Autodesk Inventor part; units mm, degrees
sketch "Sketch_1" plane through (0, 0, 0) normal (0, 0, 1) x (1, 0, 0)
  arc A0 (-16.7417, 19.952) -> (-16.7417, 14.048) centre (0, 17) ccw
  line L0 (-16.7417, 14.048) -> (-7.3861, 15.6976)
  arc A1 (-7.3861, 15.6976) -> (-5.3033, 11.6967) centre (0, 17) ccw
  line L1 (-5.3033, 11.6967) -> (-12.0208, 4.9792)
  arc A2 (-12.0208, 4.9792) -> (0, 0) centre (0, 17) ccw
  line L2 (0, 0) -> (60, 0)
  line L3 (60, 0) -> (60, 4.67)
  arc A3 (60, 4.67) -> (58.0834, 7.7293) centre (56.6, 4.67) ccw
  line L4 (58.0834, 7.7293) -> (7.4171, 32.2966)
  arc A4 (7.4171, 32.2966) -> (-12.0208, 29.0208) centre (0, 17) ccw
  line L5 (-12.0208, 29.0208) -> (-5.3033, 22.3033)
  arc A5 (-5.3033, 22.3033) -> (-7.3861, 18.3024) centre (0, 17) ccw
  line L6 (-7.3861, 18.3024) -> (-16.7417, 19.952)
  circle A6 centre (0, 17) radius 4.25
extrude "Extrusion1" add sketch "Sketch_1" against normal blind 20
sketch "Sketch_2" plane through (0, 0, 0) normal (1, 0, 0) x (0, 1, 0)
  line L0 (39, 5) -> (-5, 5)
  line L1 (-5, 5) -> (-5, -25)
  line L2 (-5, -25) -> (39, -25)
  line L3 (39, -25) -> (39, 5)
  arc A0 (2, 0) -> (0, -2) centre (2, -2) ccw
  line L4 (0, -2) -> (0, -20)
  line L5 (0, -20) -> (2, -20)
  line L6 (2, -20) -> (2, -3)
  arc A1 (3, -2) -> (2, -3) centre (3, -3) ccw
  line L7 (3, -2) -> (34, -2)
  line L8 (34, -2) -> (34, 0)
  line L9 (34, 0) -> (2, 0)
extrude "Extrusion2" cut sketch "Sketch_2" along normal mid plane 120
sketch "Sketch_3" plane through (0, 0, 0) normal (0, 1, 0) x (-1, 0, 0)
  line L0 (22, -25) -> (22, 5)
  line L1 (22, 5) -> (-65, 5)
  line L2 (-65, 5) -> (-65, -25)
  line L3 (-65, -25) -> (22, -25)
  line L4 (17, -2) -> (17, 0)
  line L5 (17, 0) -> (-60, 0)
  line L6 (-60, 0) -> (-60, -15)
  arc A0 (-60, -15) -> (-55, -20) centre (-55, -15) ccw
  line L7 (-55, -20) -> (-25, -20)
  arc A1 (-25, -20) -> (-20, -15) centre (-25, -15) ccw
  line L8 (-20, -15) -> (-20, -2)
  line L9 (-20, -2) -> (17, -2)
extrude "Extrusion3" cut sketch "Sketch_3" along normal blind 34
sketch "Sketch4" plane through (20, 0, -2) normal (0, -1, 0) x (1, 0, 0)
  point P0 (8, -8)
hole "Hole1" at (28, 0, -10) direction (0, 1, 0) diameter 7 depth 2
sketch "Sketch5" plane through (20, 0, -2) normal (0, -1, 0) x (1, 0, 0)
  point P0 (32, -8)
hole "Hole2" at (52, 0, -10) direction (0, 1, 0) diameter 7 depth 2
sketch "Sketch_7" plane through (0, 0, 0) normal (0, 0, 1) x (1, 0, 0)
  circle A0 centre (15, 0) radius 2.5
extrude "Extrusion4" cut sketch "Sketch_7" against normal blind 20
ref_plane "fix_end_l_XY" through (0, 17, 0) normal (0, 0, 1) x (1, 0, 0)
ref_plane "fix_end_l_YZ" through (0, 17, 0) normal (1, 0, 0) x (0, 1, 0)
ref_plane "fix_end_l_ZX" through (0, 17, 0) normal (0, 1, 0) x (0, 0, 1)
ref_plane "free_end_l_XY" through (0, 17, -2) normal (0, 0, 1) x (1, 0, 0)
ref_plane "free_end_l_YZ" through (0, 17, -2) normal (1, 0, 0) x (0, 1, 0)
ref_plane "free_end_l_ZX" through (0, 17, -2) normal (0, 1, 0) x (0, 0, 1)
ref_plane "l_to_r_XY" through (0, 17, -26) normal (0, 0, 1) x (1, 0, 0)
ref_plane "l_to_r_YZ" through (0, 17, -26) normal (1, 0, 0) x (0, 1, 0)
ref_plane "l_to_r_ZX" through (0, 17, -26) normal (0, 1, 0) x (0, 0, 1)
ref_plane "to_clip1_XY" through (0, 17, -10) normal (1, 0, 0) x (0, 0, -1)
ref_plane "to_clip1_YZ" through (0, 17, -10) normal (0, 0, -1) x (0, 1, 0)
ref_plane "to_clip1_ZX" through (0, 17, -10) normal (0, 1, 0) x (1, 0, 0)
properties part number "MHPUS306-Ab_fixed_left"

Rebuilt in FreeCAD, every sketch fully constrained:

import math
import FreeCAD as App
import Part
import Sketcher
Q = App.Units.Quantity

doc = App.newDocument("Part")
body = doc.addObject("PartDesign::Body", "Body")

sketch1 = doc.addObject("Sketcher::SketchObject", "Sketch")
body.addObject(sketch1)
sketch1.AttachmentSupport = (doc.XY_Plane, [""])
sketch1.MapMode = "FlatFace"
sketch1.addGeometry([
    Part.LineSegment(App.Vector(-7.4, 18.3, 0), App.Vector(-16.7, 20, 0)),
    Part.ArcOfCircle(Part.Circle(App.Vector(0, 17, 0), App.Vector(0, 0, 1), 17), math.radians(170), math.radians(190)),
    Part.LineSegment(App.Vector(-16.7, 14, 0), App.Vector(-7.4, 15.7, 0)),
    Part.ArcOfCircle(Part.Circle(App.Vector(0, 17, 0), App.Vector(0, 0, 1), 7.5), math.radians(-170), math.radians(-135)),
    Part.LineSegment(App.Vector(-5.3, 11.7, 0), App.Vector(-12, 5, 0)),
    Part.ArcOfCircle(Part.Circle(App.Vector(0, 17, 0), App.Vector(0, 0, 1), 17), math.radians(-135), math.radians(-90)),
    Part.LineSegment(App.Vector(0, 0, 0), App.Vector(60, 0, 0)),
    Part.LineSegment(App.Vector(60, 0, 0), App.Vector(60, 4.7, 0)),
    Part.ArcOfCircle(Part.Circle(App.Vector(56.6, 4.7, 0), App.Vector(0, 0, 1), 3.4), math.radians(0), math.radians(64)),
    Part.LineSegment(App.Vector(58.1, 7.7, 0), App.Vector(7.4, 32.3, 0)),
    Part.ArcOfCircle(Part.Circle(App.Vector(0, 17, 0), App.Vector(0, 0, 1), 17), math.radians(64), math.radians(135)),
    Part.LineSegment(App.Vector(-12, 29, 0), App.Vector(-5.3, 22.3, 0)),
    Part.ArcOfCircle(Part.Circle(App.Vector(0, 17, 0), App.Vector(0, 0, 1), 7.5), math.radians(135), math.radians(170)),
    Part.Circle(App.Vector(0, 17, 0), App.Vector(0, 0, 1), 4.2),
], False)
sketch1.addConstraint([
    Sketcher.Constraint("Coincident", 0, 2, 1, 1),
    Sketcher.Constraint("Coincident", 1, 2, 2, 1),
    Sketcher.Constraint("Coincident", 2, 2, 3, 1),
    Sketcher.Constraint("Coincident", 3, 2, 4, 1),
    Sketcher.Constraint("Coincident", 4, 2, 5, 1),
    Sketcher.Constraint("Tangent", 5, 2, 6, 1),
    Sketcher.Constraint("Coincident", 6, 2, 7, 1),
    Sketcher.Constraint("Tangent", 7, 2, 8, 1),
    Sketcher.Constraint("Tangent", 8, 2, 9, 1),
    Sketcher.Constraint("Tangent", 9, 2, 10, 1),
    Sketcher.Constraint("Coincident", 10, 2, 11, 1),
    Sketcher.Constraint("Coincident", 11, 2, 12, 1),
    Sketcher.Constraint("Coincident", 12, 2, 0, 1),
    Sketcher.Constraint("Horizontal", 6),
    Sketcher.Constraint("Vertical", 7),
    Sketcher.Constraint("Coincident", 5, 2, -1, 1),
    Sketcher.Constraint("Coincident", 3, 3, 1, 3),
    Sketcher.Constraint("Coincident", 5, 3, 1, 3),
    Sketcher.Constraint("Coincident", 10, 3, 1, 3),
    Sketcher.Constraint("Coincident", 12, 3, 1, 3),
    Sketcher.Constraint("Coincident", 13, 3, 1, 3),
    Sketcher.Constraint("Equal", 1, 5),
    Sketcher.Constraint("Equal", 5, 10),
    Sketcher.Constraint("Equal", 3, 12),
    Sketcher.Constraint("Perpendicular", 4, 11),
    Sketcher.Constraint("Vertical", 0, 2, 1, 2),
    Sketcher.Constraint("Vertical", 4, 2, 10, 2),
    Sketcher.Constraint("Vertical", 3, 2, 11, 2),
    Sketcher.Constraint("Vertical", 2, 2, 12, 2),
    Sketcher.Constraint("Radius", 1, 17.0),
    Sketcher.Constraint("Diameter", 13, 8.5),
    Sketcher.Constraint("Radius", 3, 7.5),
    Sketcher.Constraint("Radius", 8, 3.4),
    Sketcher.Constraint("DistanceX", 6, 1, 6, 2, 60.0),
    Sketcher.Constraint("Angle", 0, Q("170.0003 deg")),
    Sketcher.Constraint("DistanceY", 7, 1, 7, 2, 4.67),
    Sketcher.Constraint("DistanceY", -1, 1, 0, 2, 19.952),
    Sketcher.Constraint("DistanceY", 3, 2, 2, 2, 4.001),
])
pad1 = doc.addObject("PartDesign::Pad", "Pad")
body.addObject(pad1)
pad1.Profile = sketch1
pad1.Length = 20
pad1.Reversed = True

sketch2 = doc.addObject("Sketcher::SketchObject", "Sketch001")
body.addObject(sketch2)
sketch2.AttachmentSupport = (doc.YZ_Plane, [""])
sketch2.MapMode = "FlatFace"
sketch2.addGeometry([
    Part.LineSegment(App.Vector(39, -25, 0), App.Vector(39, 5, 0)),
    Part.LineSegment(App.Vector(39, 5, 0), App.Vector(-5, 5, 0)),
    Part.LineSegment(App.Vector(-5, 5, 0), App.Vector(-5, -25, 0)),
    Part.LineSegment(App.Vector(-5, -25, 0), App.Vector(39, -25, 0)),
    Part.ArcOfCircle(Part.Circle(App.Vector(2, -2, 0), App.Vector(0, 0, 1), 2), math.radians(90), math.radians(180)),
    Part.LineSegment(App.Vector(2, 0, 0), App.Vector(34, 0, 0)),
    Part.LineSegment(App.Vector(34, 0, 0), App.Vector(34, -2, 0)),
    Part.LineSegment(App.Vector(34, -2, 0), App.Vector(3, -2, 0)),
    Part.ArcOfCircle(Part.Circle(App.Vector(3, -3, 0), App.Vector(0, 0, 1), 1), math.radians(90), math.radians(180)),
    Part.LineSegment(App.Vector(2, -3, 0), App.Vector(2, -20, 0)),
    Part.LineSegment(App.Vector(2, -20, 0), App.Vector(0, -20, 0)),
    Part.LineSegment(App.Vector(0, -20, 0), App.Vector(0, -2, 0)),
], False)
sketch2.addConstraint([
    Sketcher.Constraint("Coincident", 0, 2, 1, 1),
    Sketcher.Constraint("Coincident", 1, 2, 2, 1),
    Sketcher.Constraint("Coincident", 2, 2, 3, 1),
    Sketcher.Constraint("Coincident", 3, 2, 0, 1),
    Sketcher.Constraint("Tangent", 4, 1, 5, 1),
    Sketcher.Constraint("Coincident", 5, 2, 6, 1),
    Sketcher.Constraint("Coincident", 6, 2, 7, 1),
    Sketcher.Constraint("Tangent", 7, 2, 8, 1),
    Sketcher.Constraint("Tangent", 8, 2, 9, 1),
    Sketcher.Constraint("Coincident", 9, 2, 10, 1),
    Sketcher.Constraint("Coincident", 10, 2, 11, 1),
    Sketcher.Constraint("Tangent", 11, 2, 4, 2),
    Sketcher.Constraint("Vertical", 0),
    Sketcher.Constraint("Horizontal", 1),
    Sketcher.Constraint("Vertical", 2),
    Sketcher.Constraint("Horizontal", 3),
    Sketcher.Constraint("Horizontal", 5),
    Sketcher.Constraint("Vertical", 6),
    Sketcher.Constraint("Horizontal", 7),
    Sketcher.Constraint("Vertical", 9),
    Sketcher.Constraint("Horizontal", 10),
    Sketcher.Constraint("Vertical", 11),
    Sketcher.Constraint("PointOnObject", 4, 1, -1),
    Sketcher.Constraint("PointOnObject", 10, 2, -2),
    Sketcher.Constraint("Horizontal", 4, 3, 6, 2),
    Sketcher.Constraint("Vertical", 4, 1, 8, 2),
    Sketcher.Constraint("Radius", 4, 2.0),
    Sketcher.Constraint("Radius", 8, 1.0),
    Sketcher.Constraint("DistanceX", 1, 2, 1, 1, 44.0),
    Sketcher.Constraint("DistanceX", 5, 1, 5, 2, 32.0),
    Sketcher.Constraint("DistanceY", 0, 1, 0, 2, 30.0),
    Sketcher.Constraint("DistanceY", 9, 2, 9, 1, 17.0),
    Sketcher.Constraint("DistanceX", -1, 1, 0, 2, 39.0),
    Sketcher.Constraint("DistanceY", -1, 1, 0, 2, 5.0),
])
pocket1 = doc.addObject("PartDesign::Pocket", "Pocket")
body.addObject(pocket1)
pocket1.Profile = sketch2
pocket1.Length = 120
pocket1.Midplane = True

sketch3 = doc.addObject("Sketcher::SketchObject", "Sketch002")
body.addObject(sketch3)
sketch3.AttachmentSupport = (doc.XZ_Plane, [""])
sketch3.MapMode = "FlatFace"
sketch3.addGeometry([
    Part.LineSegment(App.Vector(65, -25, 0), App.Vector(-22, -25, 0)),
    Part.LineSegment(App.Vector(-22, -25, 0), App.Vector(-22, 5, 0)),
    Part.LineSegment(App.Vector(-22, 5, 0), App.Vector(65, 5, 0)),
    Part.LineSegment(App.Vector(65, 5, 0), App.Vector(65, -25, 0)),
    Part.LineSegment(App.Vector(-17, 0, 0), App.Vector(-17, -2, 0)),
    Part.LineSegment(App.Vector(-17, -2, 0), App.Vector(20, -2, 0)),
    Part.LineSegment(App.Vector(20, -2, 0), App.Vector(20, -15, 0)),
    Part.ArcOfCircle(Part.Circle(App.Vector(25, -15, 0), App.Vector(0, 0, 1), 5), math.radians(180), math.radians(270)),
    Part.LineSegment(App.Vector(25, -20, 0), App.Vector(55, -20, 0)),
    Part.ArcOfCircle(Part.Circle(App.Vector(55, -15, 0), App.Vector(0, 0, 1), 5), math.radians(-90), math.radians(0)),
    Part.LineSegment(App.Vector(60, -15, 0), App.Vector(60, 0, 0)),
    Part.LineSegment(App.Vector(60, 0, 0), App.Vector(-17, 0, 0)),
], False)
sketch3.addConstraint([
    Sketcher.Constraint("Coincident", 0, 2, 1, 1),
    Sketcher.Constraint("Coincident", 1, 2, 2, 1),
    Sketcher.Constraint("Coincident", 2, 2, 3, 1),
    Sketcher.Constraint("Coincident", 3, 2, 0, 1),
    Sketcher.Constraint("Coincident", 4, 2, 5, 1),
    Sketcher.Constraint("Coincident", 5, 2, 6, 1),
    Sketcher.Constraint("Tangent", 6, 2, 7, 1),
    Sketcher.Constraint("Tangent", 7, 2, 8, 1),
    Sketcher.Constraint("Tangent", 8, 2, 9, 1),
    Sketcher.Constraint("Tangent", 9, 2, 10, 1),
    Sketcher.Constraint("Coincident", 10, 2, 11, 1),
    Sketcher.Constraint("Coincident", 11, 2, 4, 1),
    Sketcher.Constraint("Horizontal", 0),
    Sketcher.Constraint("Vertical", 1),
    Sketcher.Constraint("Horizontal", 2),
    Sketcher.Constraint("Vertical", 3),
    Sketcher.Constraint("Vertical", 4),
    Sketcher.Constraint("Horizontal", 5),
    Sketcher.Constraint("Vertical", 6),
    Sketcher.Constraint("Horizontal", 8),
    Sketcher.Constraint("Vertical", 10),
    Sketcher.Constraint("Horizontal", 11),
    Sketcher.Constraint("Equal", 7, 9),
    Sketcher.Constraint("PointOnObject", 10, 2, -1),
    Sketcher.Constraint("Equal", 8, 1),
    Sketcher.Constraint("Radius", 7, 5.0),
    Sketcher.Constraint("DistanceX", 0, 2, 0, 1, 87.0),
    Sketcher.Constraint("DistanceX", 5, 1, 5, 2, 37.0),
    Sketcher.Constraint("DistanceX", 8, 1, 8, 2, 30.0),
    Sketcher.Constraint("DistanceY", 4, 2, 4, 1, 2.0),
    Sketcher.Constraint("DistanceY", 6, 2, 6, 1, 13.0),
    Sketcher.Constraint("DistanceX", -1, 1, 7, 3, 25.0),
    Sketcher.Constraint("DistanceX", 0, 2, -1, 1, 22.0),
    Sketcher.Constraint("DistanceY", 0, 2, -1, 1, 25.0),
])
pocket2 = doc.addObject("PartDesign::Pocket", "Pocket001")
body.addObject(pocket2)
pocket2.Profile = sketch3
pocket2.Length = 34

sketch4 = doc.addObject("Sketcher::SketchObject", "Sketch003")
body.addObject(sketch4)
sketch4.AttachmentSupport = (doc.XZ_Plane, [""])
sketch4.MapMode = "FlatFace"
sketch4.addGeometry(Part.Circle(App.Vector(28, -10, 0), App.Vector(0, 0, 1), 3.5), False)
sketch4.addConstraint([
    Sketcher.Constraint("Diameter", 0, 7.0),
    Sketcher.Constraint("DistanceX", -1, 1, 0, 3, 28.0),
    Sketcher.Constraint("DistanceY", 0, 3, -1, 1, 10.0),
])
doc.recompute()
hole = doc.addObject("PartDesign::Hole", "Hole")
body.addObject(hole)
hole.Profile = sketch4
hole.ThreadType = "None"
hole.Diameter = 7
hole.DepthType = "Dimension"
hole.Depth = 2
hole.DrillPoint = "Flat"

sketch5 = doc.addObject("Sketcher::SketchObject", "Sketch004")
body.addObject(sketch5)
sketch5.AttachmentSupport = (doc.XZ_Plane, [""])
sketch5.MapMode = "FlatFace"
sketch5.addGeometry(Part.Circle(App.Vector(52, -10, 0), App.Vector(0, 0, 1), 3.5), False)
sketch5.addConstraint([
    Sketcher.Constraint("Diameter", 0, 7.0),
    Sketcher.Constraint("DistanceX", -1, 1, 0, 3, 52.0),
    Sketcher.Constraint("DistanceY", 0, 3, -1, 1, 10.0),
])
doc.recompute()
hole2 = doc.addObject("PartDesign::Hole", "Hole001")
body.addObject(hole2)
hole2.Profile = sketch5
hole2.ThreadType = "None"
hole2.Diameter = 7
hole2.DepthType = "Dimension"
hole2.Depth = 2
hole2.DrillPoint = "Flat"

sketch6 = doc.addObject("Sketcher::SketchObject", "Sketch005")
body.addObject(sketch6)
sketch6.AttachmentSupport = (doc.XY_Plane, [""])
sketch6.MapMode = "FlatFace"
sketch6.addGeometry(Part.Circle(App.Vector(15, 0, 0), App.Vector(0, 0, 1), 2.5), False)
sketch6.addConstraint([
    Sketcher.Constraint("PointOnObject", 0, 3, -1),
    Sketcher.Constraint("Diameter", 0, 5.0),
    Sketcher.Constraint("DistanceX", -1, 1, 0, 3, 15.0),
])
pocket3 = doc.addObject("PartDesign::Pocket", "Pocket002")
body.addObject(pocket3)
pocket3.Profile = sketch6
pocket3.Length = 20

doc.recompute()
